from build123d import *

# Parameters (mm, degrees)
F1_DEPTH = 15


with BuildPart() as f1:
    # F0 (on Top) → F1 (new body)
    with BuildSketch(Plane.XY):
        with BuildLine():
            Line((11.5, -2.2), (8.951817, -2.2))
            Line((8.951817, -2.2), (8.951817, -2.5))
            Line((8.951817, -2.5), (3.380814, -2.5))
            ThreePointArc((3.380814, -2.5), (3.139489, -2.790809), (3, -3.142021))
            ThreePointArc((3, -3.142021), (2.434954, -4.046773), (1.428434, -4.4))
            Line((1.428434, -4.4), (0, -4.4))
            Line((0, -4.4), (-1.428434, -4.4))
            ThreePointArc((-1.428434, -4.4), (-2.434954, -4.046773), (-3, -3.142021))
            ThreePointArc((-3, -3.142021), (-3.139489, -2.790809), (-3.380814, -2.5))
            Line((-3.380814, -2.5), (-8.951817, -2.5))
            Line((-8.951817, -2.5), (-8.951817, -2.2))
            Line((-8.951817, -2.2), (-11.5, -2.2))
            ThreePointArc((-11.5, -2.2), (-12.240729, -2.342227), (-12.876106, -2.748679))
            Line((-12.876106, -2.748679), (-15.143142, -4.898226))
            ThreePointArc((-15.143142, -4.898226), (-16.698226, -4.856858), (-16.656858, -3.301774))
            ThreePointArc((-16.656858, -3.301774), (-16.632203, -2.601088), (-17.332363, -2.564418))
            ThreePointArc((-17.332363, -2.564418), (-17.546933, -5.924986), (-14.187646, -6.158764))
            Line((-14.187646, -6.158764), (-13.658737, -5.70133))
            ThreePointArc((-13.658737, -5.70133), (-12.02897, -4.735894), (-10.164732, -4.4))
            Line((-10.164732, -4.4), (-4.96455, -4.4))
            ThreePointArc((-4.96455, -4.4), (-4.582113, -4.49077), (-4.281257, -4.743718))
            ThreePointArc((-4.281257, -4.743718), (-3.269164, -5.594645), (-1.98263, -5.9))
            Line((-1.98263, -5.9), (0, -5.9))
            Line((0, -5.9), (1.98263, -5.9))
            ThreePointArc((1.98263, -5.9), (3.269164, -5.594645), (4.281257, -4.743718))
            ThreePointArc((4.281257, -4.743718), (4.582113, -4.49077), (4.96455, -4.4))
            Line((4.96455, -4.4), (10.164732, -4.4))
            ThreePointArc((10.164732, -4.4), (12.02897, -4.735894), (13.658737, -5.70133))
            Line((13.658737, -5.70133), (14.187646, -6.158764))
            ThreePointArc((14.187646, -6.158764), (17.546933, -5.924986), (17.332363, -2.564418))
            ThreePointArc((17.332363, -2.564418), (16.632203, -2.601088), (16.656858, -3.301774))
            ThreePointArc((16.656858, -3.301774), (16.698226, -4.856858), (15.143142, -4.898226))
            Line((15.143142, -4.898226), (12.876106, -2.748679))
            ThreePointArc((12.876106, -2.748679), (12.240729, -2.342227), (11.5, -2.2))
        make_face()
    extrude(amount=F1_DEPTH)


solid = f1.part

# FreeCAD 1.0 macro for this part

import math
import FreeCAD as App
import Part
import Sketcher

V = App.Vector
Q = App.Units.Quantity

doc = App.newDocument("Part")
body = doc.addObject("PartDesign::Body", "Body")

sketch1 = doc.addObject("Sketcher::SketchObject", "Sketch")
body.addObject(sketch1)
sketch1.AttachmentSupport = (doc.XY_Plane, [""])
sketch1.MapMode = "FlatFace"
sketch1.addGeometry([
    Part.LineSegment(V(11.5, -2.2, 0), V(8.95, -2.2, 0)),
    Part.LineSegment(V(8.95, -2.2, 0), V(8.95, -2.5, 0)),
    Part.LineSegment(V(8.95, -2.5, 0), V(3.38, -2.5, 0)),
    Part.ArcOfCircle(Part.Circle(V(4.18, -3.41, 0), V(0, 0, 1), 1.21), math.radians(131), math.radians(167)),
    Part.ArcOfCircle(Part.Circle(V(1.43, -2.79, 0), V(0, 0, 1), 1.61), math.radians(-90), math.radians(-13)),
    Part.LineSegment(V(1.43, -4.4, 0), V(-1.43, -4.4, 0)),
    Part.ArcOfCircle(Part.Circle(V(-1.43, -2.79, 0), V(0, 0, 1), 1.61), math.radians(-167), math.radians(-90)),
    Part.ArcOfCircle(Part.Circle(V(-4.18, -3.41, 0), V(0, 0, 1), 1.21), math.radians(13), math.radians(49)),
    Part.LineSegment(V(-3.38, -2.5, 0), V(-8.95, -2.5, 0)),
    Part.LineSegment(V(-8.95, -2.5, 0), V(-8.95, -2.2, 0)),
    Part.LineSegment(V(-8.95, -2.2, 0), V(-11.5, -2.2, 0)),
    Part.ArcOfCircle(Part.Circle(V(-11.5, -4.2, 0), V(0, 0, 1), 2), math.radians(90), math.radians(133)),
    Part.LineSegment(V(-12.88, -2.75, 0), V(-15.14, -4.9, 0)),
    Part.ArcOfCircle(Part.Circle(V(-15.9, -4.1, 0), V(0, 0, 1), 1.1), math.radians(133), math.radians(313)),
    Part.ArcOfCircle(Part.Circle(V(-17, -2.94, 0), V(0, 0, 1), 0.5), math.radians(-47), math.radians(132)),
    Part.ArcOfCircle(Part.Circle(V(-15.75, -4.35, 0), V(0, 0, 1), 2.39), math.radians(132), math.radians(311)),
    Part.LineSegment(V(-14.19, -6.16, 0), V(-13.66, -5.7, 0)),
    Part.ArcOfCircle(Part.Circle(V(-10.16, -9.74, 0), V(0, 0, 1), 5.34), math.radians(90), math.radians(131)),
    Part.LineSegment(V(-10.16, -4.4, 0), V(-4.96, -4.4, 0)),
    Part.ArcOfCircle(Part.Circle(V(-4.96, -5.25, 0), V(0, 0, 1), 0.85), math.radians(37), math.radians(90)),
    Part.ArcOfCircle(Part.Circle(V(-1.98, -3.04, 0), V(0, 0, 1), 2.86), math.radians(-143), math.radians(-90)),
    Part.LineSegment(V(-1.98, -5.9, 0), V(1.98, -5.9, 0)),
    Part.ArcOfCircle(Part.Circle(V(1.98, -3.04, 0), V(0, 0, 1), 2.86), math.radians(-90), math.radians(-37)),
    Part.ArcOfCircle(Part.Circle(V(4.96, -5.25, 0), V(0, 0, 1), 0.85), math.radians(90), math.radians(143)),
    Part.LineSegment(V(4.96, -4.4, 0), V(10.16, -4.4, 0)),
    Part.ArcOfCircle(Part.Circle(V(10.16, -9.74, 0), V(0, 0, 1), 5.34), math.radians(49), math.radians(90)),
    Part.LineSegment(V(13.66, -5.7, 0), V(14.19, -6.16, 0)),
    Part.ArcOfCircle(Part.Circle(V(15.75, -4.35, 0), V(0, 0, 1), 2.39), math.radians(-131), math.radians(48)),
    Part.ArcOfCircle(Part.Circle(V(17, -2.94, 0), V(0, 0, 1), 0.5), math.radians(48), math.radians(227)),
    Part.ArcOfCircle(Part.Circle(V(15.9, -4.1, 0), V(0, 0, 1), 1.1), math.radians(-133), math.radians(47)),
    Part.LineSegment(V(15.14, -4.9, 0), V(12.88, -2.75, 0)),
    Part.ArcOfCircle(Part.Circle(V(11.5, -4.2, 0), V(0, 0, 1), 2), math.radians(47), math.radians(90)),
], False)
sketch1.addConstraint([
    Sketcher.Constraint("Coincident", 0, 2, 1, 1),
    Sketcher.Constraint("Coincident", 1, 2, 2, 1),
    Sketcher.Constraint("Coincident", 2, 2, 3, 1),
    Sketcher.Constraint("Coincident", 3, 2, 4, 2),
    Sketcher.Constraint("Tangent", 4, 1, 5, 1),
    Sketcher.Constraint("Tangent", 5, 2, 6, 2),
    Sketcher.Constraint("Coincident", 6, 1, 7, 1),
    Sketcher.Constraint("Coincident", 7, 2, 8, 1),
    Sketcher.Constraint("Coincident", 8, 2, 9, 1),
    Sketcher.Constraint("Coincident", 9, 2, 10, 1),
    Sketcher.Constraint("Tangent", 10, 2, 11, 1),
    Sketcher.Constraint("Tangent", 11, 2, 12, 1),
    Sketcher.Constraint("Tangent", 12, 2, 13, 2),
    Sketcher.Constraint("Tangent", 13, 1, 14, 1),
    Sketcher.Constraint("Tangent", 14, 2, 15, 1),
    Sketcher.Constraint("Tangent", 15, 2, 16, 1),
    Sketcher.Constraint("Tangent", 16, 2, 17, 2),
    Sketcher.Constraint("Tangent", 17, 1, 18, 1),
    Sketcher.Constraint("Tangent", 18, 2, 19, 2),
    Sketcher.Constraint("Tangent", 19, 1, 20, 1),
    Sketcher.Constraint("Tangent", 20, 2, 21, 1),
    Sketcher.Constraint("Tangent", 21, 2, 22, 1),
    Sketcher.Constraint("Tangent", 22, 2, 23, 2),
    Sketcher.Constraint("Tangent", 23, 1, 24, 1),
    Sketcher.Constraint("Tangent", 24, 2, 25, 2),
    Sketcher.Constraint("Tangent", 25, 1, 26, 1),
    Sketcher.Constraint("Tangent", 26, 2, 27, 1),
    Sketcher.Constraint("Tangent", 27, 2, 28, 1),
    Sketcher.Constraint("Tangent", 28, 2, 29, 2),
    Sketcher.Constraint("Tangent", 29, 1, 30, 1),
    Sketcher.Constraint("Tangent", 30, 2, 31, 1),
    Sketcher.Constraint("Tangent", 31, 2, 0, 1),
    Sketcher.Constraint("Horizontal", 0),
    Sketcher.Constraint("Vertical", 1),
    Sketcher.Constraint("Horizontal", 2),
    Sketcher.Constraint("Horizontal", 5),
    Sketcher.Constraint("Horizontal", 8),
    Sketcher.Constraint("Vertical", 9),
    Sketcher.Constraint("Horizontal", 10),
    Sketcher.Constraint("Horizontal", 18),
    Sketcher.Constraint("Horizontal", 21),
    Sketcher.Constraint("Horizontal", 24),
    Sketcher.Constraint("Equal", 4, 6),
    Sketcher.Constraint("Equal", 3, 7),
    Sketcher.Constraint("Equal", 20, 22),
    Sketcher.Constraint("Equal", 19, 23),
    Sketcher.Constraint("Equal", 17, 25),
    Sketcher.Constraint("Equal", 15, 27),
    Sketcher.Constraint("Equal", 14, 28),
    Sketcher.Constraint("Equal", 13, 29),
    Sketcher.Constraint("Equal", 11, 31),
    Sketcher.Constraint("Symmetric", 3, 3, 7, 3, -2),
    Sketcher.Constraint("Symmetric", 19, 3, 23, 3, -2),
    Sketcher.Constraint("Symmetric", 15, 3, 27, 3, -2),
    Sketcher.Constraint("Symmetric", 13, 3, 29, 3, -2),
    Sketcher.Constraint("Symmetric", 11, 3, 31, 3, -2),
    Sketcher.Constraint("Symmetric", 1, 2, 8, 2, -2),
    Sketcher.Constraint("Horizontal", 3, 2, 6, 1),
    Sketcher.Constraint("Horizontal", 5, 2, 17, 1),
    Sketcher.Constraint("Horizontal", 16, 2, 25, 1),
    Sketcher.Constraint("Radius", 11, Q("2.000001 mm")),
    Sketcher.Constraint("Radius", 13, Q("1.099999 mm")),
    Sketcher.Constraint("DistanceY", 1, 2, 1, 1, Q("0.3 mm")),
    Sketcher.Constraint("DistanceX", -1, 1, 3, 2, Q("3 mm")),
    Sketcher.Constraint("DistanceX", 11, 3, -1, 1, Q("11.5 mm")),
    Sketcher.Constraint("DistanceY", 11, 3, -1, 1, Q("4.200001 mm")),
    Sketcher.Constraint("DistanceX", 13, 3, -1, 1, Q("15.9 mm")),
    Sketcher.Constraint("DistanceY", 13, 3, -1, 1, Q("4.1 mm")),
    Sketcher.Constraint("DistanceY", 4, 1, -1, 1, Q("4.4 mm")),
    Sketcher.Constraint("DistanceY", 20, 2, -1, 1, Q("5.9 mm")),
    Sketcher.Constraint("Radius", 3, Q("1.20612 mm")),
    Sketcher.Constraint("Radius", 4, Q("1.61065 mm")),
    Sketcher.Constraint("Radius", 19, Q("0.851031 mm")),
    Sketcher.Constraint("Radius", 14, Q("0.500074 mm")),
    Sketcher.Constraint("Radius", 15, Q("2.387955 mm")),
    Sketcher.Constraint("Radius", 17, Q("5.341276 mm")),
    Sketcher.Constraint("Radius", 20, Q("2.862914 mm")),
    Sketcher.Constraint("DistanceX", 5, 2, 5, 1, Q("2.856868 mm")),
    Sketcher.Constraint("DistanceX", 21, 1, 21, 2, Q("3.96526 mm")),
    Sketcher.Constraint("DistanceX", 7, 3, 3, 3, Q("8.353702 mm")),
    Sketcher.Constraint("DistanceX", 14, 3, 6, 3, Q("15.572501 mm")),
    Sketcher.Constraint("DistanceY", 15, 3, 11, 3, Q("0.152601 mm")),
    Sketcher.Constraint("DistanceX", 4, 3, 25, 3, Q("8.736298 mm")),
    Sketcher.Constraint("DistanceX", 0, 2, 0, 1, Q("2.548183 mm")),
])
pad1 = doc.addObject("PartDesign::Pad", "Pad")
body.addObject(pad1)
pad1.Profile = sketch1
pad1.Length = 15

doc.recompute()
